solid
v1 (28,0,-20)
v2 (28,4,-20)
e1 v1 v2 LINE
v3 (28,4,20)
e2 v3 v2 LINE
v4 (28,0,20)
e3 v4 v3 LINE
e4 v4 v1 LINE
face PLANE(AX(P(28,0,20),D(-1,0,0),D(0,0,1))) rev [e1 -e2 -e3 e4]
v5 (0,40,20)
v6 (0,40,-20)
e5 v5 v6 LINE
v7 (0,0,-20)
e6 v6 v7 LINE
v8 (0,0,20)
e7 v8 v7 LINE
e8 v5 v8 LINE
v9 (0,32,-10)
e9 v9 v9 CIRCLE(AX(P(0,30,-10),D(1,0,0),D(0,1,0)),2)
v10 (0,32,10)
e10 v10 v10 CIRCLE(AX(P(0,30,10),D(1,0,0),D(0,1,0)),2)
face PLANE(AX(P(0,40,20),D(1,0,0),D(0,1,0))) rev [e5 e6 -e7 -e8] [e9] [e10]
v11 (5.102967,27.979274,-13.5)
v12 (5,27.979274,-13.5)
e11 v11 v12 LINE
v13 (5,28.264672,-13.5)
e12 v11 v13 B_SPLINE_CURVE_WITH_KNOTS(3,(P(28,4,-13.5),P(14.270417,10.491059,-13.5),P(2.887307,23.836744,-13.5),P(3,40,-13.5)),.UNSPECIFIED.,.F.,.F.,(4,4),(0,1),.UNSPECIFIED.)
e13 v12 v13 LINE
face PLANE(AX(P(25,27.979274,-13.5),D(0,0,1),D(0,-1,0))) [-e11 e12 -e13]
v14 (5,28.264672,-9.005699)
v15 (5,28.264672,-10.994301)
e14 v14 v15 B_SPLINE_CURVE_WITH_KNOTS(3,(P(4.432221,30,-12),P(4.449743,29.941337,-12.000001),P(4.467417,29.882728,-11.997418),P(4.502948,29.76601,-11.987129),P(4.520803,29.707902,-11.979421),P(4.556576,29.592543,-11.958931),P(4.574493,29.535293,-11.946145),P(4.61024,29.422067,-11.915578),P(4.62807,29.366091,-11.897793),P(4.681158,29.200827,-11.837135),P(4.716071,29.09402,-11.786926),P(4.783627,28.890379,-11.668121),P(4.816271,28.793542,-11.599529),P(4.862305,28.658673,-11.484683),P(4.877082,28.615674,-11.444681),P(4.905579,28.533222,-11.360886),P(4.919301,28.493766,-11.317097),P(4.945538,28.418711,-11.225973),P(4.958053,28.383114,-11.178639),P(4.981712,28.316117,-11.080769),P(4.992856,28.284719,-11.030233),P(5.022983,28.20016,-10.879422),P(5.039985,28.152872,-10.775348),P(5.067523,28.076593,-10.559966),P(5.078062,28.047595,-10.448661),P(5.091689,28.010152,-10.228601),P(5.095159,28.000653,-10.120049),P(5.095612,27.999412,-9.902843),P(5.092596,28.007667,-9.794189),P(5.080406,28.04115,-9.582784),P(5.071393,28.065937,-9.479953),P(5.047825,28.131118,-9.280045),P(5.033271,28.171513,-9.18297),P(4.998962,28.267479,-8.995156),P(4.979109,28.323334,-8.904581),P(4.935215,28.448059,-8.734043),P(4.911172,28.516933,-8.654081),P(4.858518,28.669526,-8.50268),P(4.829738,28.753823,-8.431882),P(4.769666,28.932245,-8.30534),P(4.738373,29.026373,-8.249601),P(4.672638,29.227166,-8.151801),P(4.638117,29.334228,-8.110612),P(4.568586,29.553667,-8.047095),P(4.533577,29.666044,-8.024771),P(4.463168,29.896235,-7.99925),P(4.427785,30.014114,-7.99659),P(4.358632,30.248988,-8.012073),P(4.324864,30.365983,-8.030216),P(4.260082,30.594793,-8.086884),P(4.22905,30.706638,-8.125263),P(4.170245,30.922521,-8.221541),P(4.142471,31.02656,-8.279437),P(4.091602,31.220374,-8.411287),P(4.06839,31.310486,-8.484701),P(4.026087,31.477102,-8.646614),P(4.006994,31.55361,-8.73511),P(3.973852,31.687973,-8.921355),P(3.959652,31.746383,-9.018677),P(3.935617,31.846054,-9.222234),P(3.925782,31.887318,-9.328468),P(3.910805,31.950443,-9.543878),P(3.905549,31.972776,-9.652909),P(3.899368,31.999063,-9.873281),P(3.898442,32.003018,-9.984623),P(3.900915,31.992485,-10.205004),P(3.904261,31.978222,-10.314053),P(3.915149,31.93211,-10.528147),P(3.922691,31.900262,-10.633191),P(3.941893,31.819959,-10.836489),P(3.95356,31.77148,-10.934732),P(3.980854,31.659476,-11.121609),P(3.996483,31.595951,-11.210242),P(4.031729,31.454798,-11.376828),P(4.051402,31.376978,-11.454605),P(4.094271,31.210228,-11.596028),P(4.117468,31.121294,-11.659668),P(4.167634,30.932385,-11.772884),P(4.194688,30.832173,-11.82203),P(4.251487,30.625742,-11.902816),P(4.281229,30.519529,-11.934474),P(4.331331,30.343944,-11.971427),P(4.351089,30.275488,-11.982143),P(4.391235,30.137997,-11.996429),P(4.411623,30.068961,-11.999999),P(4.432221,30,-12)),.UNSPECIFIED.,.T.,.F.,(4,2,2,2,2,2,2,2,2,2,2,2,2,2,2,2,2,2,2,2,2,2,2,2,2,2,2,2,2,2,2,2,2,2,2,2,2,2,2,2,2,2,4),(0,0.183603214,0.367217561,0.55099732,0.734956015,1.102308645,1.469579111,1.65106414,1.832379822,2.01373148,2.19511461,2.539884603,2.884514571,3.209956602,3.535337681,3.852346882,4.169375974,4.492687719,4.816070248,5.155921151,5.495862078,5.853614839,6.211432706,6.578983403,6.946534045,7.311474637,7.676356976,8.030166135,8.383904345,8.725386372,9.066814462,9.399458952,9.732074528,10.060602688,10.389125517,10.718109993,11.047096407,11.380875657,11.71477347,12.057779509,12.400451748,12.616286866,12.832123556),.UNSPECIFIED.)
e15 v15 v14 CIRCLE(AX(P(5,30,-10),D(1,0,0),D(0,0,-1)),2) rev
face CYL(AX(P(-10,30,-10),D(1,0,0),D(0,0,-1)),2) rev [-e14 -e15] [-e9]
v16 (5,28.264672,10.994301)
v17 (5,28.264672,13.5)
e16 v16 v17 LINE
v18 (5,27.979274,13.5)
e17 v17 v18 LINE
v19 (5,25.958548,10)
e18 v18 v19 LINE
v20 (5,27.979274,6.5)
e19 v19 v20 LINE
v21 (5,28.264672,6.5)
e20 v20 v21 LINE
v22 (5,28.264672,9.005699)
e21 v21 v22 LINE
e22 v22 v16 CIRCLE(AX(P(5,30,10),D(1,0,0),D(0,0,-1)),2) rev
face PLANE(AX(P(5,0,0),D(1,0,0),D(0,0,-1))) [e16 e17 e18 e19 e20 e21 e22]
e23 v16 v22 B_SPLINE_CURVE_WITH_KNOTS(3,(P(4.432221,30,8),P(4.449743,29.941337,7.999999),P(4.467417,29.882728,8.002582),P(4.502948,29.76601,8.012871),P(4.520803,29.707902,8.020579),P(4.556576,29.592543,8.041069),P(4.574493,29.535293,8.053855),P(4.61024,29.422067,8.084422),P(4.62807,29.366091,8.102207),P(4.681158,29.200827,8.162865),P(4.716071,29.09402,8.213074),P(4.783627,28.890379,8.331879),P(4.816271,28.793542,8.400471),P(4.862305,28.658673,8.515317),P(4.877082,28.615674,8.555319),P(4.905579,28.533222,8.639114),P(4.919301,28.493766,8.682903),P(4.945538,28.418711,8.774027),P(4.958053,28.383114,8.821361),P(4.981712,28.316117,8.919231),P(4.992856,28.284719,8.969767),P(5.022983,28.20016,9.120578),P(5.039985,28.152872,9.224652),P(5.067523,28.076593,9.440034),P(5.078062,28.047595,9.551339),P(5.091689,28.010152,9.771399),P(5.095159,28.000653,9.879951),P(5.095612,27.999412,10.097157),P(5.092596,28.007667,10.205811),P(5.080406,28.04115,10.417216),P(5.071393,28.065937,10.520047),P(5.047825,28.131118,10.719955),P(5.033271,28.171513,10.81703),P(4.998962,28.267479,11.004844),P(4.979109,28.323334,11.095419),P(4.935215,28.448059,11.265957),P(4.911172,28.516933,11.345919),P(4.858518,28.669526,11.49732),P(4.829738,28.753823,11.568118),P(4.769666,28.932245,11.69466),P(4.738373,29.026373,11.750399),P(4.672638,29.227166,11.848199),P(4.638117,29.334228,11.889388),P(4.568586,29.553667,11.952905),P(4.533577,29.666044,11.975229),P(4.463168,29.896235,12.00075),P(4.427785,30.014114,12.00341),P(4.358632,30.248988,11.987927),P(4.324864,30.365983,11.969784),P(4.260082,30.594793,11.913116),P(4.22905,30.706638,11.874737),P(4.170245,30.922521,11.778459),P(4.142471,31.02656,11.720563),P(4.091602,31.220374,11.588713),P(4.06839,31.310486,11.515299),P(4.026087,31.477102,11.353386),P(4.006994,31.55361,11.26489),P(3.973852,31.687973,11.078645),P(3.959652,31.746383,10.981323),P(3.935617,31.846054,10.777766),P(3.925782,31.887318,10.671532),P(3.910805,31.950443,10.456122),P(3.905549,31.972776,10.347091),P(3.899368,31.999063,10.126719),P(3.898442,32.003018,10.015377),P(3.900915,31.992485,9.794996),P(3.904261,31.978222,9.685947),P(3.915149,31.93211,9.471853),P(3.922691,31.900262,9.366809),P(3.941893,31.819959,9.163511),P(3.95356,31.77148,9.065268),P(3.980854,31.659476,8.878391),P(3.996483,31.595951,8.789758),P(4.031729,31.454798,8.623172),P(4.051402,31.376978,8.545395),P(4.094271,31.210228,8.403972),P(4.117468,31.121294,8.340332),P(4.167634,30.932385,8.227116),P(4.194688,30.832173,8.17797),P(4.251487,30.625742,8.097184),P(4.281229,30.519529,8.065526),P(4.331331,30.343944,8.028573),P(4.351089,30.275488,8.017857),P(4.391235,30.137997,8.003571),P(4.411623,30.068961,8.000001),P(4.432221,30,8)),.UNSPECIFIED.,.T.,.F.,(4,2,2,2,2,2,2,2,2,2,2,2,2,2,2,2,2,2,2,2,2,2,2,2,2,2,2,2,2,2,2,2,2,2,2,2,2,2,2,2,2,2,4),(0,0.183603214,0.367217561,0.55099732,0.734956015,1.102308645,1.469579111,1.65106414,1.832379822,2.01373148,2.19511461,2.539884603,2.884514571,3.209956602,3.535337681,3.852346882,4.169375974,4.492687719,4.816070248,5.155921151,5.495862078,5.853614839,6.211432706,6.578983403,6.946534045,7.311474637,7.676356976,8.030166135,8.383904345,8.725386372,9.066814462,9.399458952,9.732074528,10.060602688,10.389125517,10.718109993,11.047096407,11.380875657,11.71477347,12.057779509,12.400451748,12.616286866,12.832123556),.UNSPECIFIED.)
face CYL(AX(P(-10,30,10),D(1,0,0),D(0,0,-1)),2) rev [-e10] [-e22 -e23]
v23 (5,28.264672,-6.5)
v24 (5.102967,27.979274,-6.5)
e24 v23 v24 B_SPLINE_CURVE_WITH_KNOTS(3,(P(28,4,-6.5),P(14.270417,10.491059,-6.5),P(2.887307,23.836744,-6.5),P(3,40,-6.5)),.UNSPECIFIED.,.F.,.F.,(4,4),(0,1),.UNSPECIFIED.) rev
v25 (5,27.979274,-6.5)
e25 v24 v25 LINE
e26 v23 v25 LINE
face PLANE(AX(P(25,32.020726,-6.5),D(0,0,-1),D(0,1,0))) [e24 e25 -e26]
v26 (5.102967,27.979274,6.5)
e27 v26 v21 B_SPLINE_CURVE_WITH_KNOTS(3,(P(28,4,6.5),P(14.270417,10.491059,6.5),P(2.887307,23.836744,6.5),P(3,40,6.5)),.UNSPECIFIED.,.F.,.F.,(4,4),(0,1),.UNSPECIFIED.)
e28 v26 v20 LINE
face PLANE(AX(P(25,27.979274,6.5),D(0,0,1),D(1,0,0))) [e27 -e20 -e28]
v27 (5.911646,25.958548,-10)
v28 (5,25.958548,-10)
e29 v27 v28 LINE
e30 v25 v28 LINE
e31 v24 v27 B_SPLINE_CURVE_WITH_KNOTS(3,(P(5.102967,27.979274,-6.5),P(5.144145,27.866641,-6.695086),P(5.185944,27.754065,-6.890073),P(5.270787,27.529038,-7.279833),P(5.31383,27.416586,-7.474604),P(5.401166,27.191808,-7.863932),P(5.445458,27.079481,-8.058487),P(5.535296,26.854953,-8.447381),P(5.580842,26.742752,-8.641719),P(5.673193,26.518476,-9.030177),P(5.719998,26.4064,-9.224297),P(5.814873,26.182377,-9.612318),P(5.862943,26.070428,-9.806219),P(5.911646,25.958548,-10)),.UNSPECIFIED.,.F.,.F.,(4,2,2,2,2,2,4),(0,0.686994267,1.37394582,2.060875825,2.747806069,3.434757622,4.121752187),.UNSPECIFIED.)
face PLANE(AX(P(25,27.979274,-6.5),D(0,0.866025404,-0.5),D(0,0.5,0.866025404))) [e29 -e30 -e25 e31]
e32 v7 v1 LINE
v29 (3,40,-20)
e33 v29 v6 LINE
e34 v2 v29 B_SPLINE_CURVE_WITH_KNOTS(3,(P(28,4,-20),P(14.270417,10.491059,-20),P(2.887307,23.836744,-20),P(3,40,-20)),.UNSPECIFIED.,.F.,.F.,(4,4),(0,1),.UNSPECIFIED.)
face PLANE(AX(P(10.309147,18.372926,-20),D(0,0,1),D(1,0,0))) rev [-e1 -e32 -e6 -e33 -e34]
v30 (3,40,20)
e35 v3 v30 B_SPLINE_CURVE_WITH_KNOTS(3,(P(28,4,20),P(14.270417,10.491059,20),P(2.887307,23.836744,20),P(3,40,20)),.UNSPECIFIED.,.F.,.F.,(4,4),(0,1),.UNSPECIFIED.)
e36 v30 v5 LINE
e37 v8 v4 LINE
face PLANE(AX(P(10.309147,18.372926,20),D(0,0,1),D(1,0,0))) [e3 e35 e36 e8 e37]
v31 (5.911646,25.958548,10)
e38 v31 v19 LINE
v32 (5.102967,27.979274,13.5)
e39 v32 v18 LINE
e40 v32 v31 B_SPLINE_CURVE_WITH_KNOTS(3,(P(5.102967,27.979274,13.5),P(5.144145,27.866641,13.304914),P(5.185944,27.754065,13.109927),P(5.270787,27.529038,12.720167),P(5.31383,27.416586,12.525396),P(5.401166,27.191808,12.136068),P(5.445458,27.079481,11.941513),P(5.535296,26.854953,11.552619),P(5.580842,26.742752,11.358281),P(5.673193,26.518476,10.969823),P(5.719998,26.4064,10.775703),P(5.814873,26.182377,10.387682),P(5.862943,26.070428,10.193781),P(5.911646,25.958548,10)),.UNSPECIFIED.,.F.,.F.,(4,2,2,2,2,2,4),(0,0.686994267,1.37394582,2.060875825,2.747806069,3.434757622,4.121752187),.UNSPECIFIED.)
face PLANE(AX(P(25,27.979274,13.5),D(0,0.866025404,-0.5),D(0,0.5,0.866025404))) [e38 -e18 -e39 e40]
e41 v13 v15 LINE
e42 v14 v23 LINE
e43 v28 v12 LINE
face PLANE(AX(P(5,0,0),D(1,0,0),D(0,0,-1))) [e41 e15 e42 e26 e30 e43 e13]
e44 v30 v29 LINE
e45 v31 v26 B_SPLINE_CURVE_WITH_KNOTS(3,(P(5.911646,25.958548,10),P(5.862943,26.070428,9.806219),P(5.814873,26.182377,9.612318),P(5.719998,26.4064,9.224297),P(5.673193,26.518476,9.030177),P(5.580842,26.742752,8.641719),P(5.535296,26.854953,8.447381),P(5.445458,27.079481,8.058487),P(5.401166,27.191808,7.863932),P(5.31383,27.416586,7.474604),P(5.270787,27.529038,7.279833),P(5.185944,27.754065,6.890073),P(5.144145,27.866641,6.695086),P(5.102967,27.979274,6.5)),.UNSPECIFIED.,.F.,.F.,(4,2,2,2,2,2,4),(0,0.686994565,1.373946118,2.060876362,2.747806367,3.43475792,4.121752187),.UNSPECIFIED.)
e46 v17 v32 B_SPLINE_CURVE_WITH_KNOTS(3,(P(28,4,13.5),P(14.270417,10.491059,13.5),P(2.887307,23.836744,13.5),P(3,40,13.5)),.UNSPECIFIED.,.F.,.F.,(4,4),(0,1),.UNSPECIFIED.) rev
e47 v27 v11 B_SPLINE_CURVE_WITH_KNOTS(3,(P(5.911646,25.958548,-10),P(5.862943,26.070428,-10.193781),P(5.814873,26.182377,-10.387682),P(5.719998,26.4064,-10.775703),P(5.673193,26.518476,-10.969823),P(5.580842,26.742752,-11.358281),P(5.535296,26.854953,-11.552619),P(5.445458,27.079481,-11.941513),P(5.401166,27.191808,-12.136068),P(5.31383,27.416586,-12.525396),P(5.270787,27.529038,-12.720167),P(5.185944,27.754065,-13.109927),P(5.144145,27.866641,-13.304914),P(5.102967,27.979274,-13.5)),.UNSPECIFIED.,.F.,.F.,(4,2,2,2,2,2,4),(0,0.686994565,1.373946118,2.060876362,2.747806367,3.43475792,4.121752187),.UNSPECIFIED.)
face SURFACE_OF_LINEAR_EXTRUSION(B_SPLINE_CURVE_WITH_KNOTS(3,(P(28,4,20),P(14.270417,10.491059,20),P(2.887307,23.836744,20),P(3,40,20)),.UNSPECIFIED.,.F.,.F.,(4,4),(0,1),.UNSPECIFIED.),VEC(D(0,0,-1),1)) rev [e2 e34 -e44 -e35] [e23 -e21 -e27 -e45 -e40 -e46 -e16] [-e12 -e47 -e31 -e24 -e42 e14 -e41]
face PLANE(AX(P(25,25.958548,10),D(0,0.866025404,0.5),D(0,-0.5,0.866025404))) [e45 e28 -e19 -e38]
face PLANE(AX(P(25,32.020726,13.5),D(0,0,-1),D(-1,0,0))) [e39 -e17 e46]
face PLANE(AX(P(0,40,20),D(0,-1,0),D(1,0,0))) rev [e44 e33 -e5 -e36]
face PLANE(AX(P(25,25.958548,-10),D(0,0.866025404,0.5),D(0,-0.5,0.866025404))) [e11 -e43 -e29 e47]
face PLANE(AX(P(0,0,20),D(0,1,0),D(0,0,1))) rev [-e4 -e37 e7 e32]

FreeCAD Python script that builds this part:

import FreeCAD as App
import Part
import Sketcher
Q = App.Units.Quantity


def add_polygon(sketch, points):
    """Adds a closed chain of lines whose ends are joined by coincident constraints."""
    first, n = sketch.GeometryCount, len(points)
    for a, b in zip(points, points[1:] + points[:1]):
        sketch.addGeometry(Part.LineSegment(App.Vector(*a, 0), App.Vector(*b, 0)), False)
    for i in range(n):
        sketch.addConstraint(Sketcher.Constraint("Coincident", first + i, 2, first + (i + 1) % n, 1))

doc = App.newDocument("Part")
body = doc.addObject("PartDesign::Body", "Body")

sketch1 = body.newObject("Sketcher::SketchObject", "Sketch")
sketch1.AttachmentSupport = (doc.getObject("XY_Plane"), [""])
sketch1.MapMode = "FlatFace"
sketch1.addGeometry(Part.LineSegment(App.Vector(0, 40, 0), App.Vector(0, 0, 0)), False)
sketch1.addGeometry(Part.LineSegment(App.Vector(0, 0, 0), App.Vector(28, 0, 0)), False)
sketch1.addGeometry(Part.LineSegment(App.Vector(28, 0, 0), App.Vector(28, 4, 0)), False)
sketch1.addGeometry(Part.BSplineCurve([App.Vector(28, 4, 0), App.Vector(14.270417, 10.491059, 0), App.Vector(2.887307, 23.836744, 0), App.Vector(3, 40, 0)], [4, 4], [0, 1], False, 3, [1, 1, 1, 1], False), False)
sketch1.addGeometry(Part.LineSegment(App.Vector(3, 40, 0), App.Vector(0, 40, 0)), False)
sketch1.addConstraint(Sketcher.Constraint("Block", 3))
sketch1.addConstraint(Sketcher.Constraint("Coincident", 0, 2, 1, 1))
sketch1.addConstraint(Sketcher.Constraint("Coincident", 1, 2, 2, 1))
sketch1.addConstraint(Sketcher.Constraint("Coincident", 2, 2, 3, 1))
sketch1.addConstraint(Sketcher.Constraint("Coincident", 3, 2, 4, 1))
sketch1.addConstraint(Sketcher.Constraint("Coincident", 4, 2, 0, 1))
sketch1.addConstraint(Sketcher.Constraint("Vertical", 0))
sketch1.addConstraint(Sketcher.Constraint("Horizontal", 1))
sketch1.addConstraint(Sketcher.Constraint("Vertical", 2))
sketch1.addConstraint(Sketcher.Constraint("Horizontal", 4))
sketch1.addConstraint(Sketcher.Constraint("Coincident", 0, 2, -1, 1))
pad1 = body.newObject("PartDesign::Pad", "Pad")
pad1.Profile = sketch1
pad1.Length = 40
pad1.Midplane = True

sketch2 = body.newObject("Sketcher::SketchObject", "Sketch001")
sketch2.AttachmentSupport = (doc.getObject("YZ_Plane"), [""])
sketch2.MapMode = "FlatFace"
sketch2.addGeometry(Part.Circle(App.Vector(30, 10, 0), App.Vector(0, 0, 1), 2), False)
sketch2.addGeometry(Part.Circle(App.Vector(30, -10, 0), App.Vector(0, 0, 1), 2), False)
sketch2.addConstraint(Sketcher.Constraint("Equal", 0, 1))
sketch2.addConstraint(Sketcher.Constraint("Symmetric", 0, 3, 1, 3, -1))
sketch2.addConstraint(Sketcher.Constraint("Diameter", 0, 4.0))
sketch2.addConstraint(Sketcher.Constraint("DistanceX", -1, 1, 0, 3, 30.0))
sketch2.addConstraint(Sketcher.Constraint("DistanceY", -1, 1, 0, 3, 10.0))
pocket1 = body.newObject("PartDesign::Pocket", "Pocket")
pocket1.Profile = sketch2
pocket1.Length = 20
pocket1.Midplane = True

sketch3 = body.newObject("Sketcher::SketchObject", "Sketch002")
sketch3.AttachmentSupport = (doc.getObject("YZ_Plane"), [""])
sketch3.MapMode = "FlatFace"
sketch3.AttachmentOffset = App.Placement(App.Vector(0, 0, 5), App.Rotation())
add_polygon(sketch3, [(34, 10), (32, 13.5), (28, 13.5), (26, 10), (28, 6.5), (32, 6.5)])
add_polygon(sketch3, [(34, -10), (32, -6.5), (28, -6.5), (26, -10), (28, -13.5), (32, -13.5)])
sketch3.addConstraint(Sketcher.Constraint("Horizontal", 1))
sketch3.addConstraint(Sketcher.Constraint("Horizontal", 4))
sketch3.addConstraint(Sketcher.Constraint("Horizontal", 7))
sketch3.addConstraint(Sketcher.Constraint("Horizontal", 10))
sketch3.addConstraint(Sketcher.Constraint("Symmetric", 4, 2, 6, 2, -1))
sketch3.addConstraint(Sketcher.Constraint("Symmetric", 2, 2, 8, 2, -1))
sketch3.addConstraint(Sketcher.Constraint("Symmetric", 1, 2, 9, 2, -1))
sketch3.addConstraint(Sketcher.Constraint("Symmetric", 5, 2, 11, 2, -1))
sketch3.addConstraint(Sketcher.Constraint("Parallel", 0, 3))
sketch3.addConstraint(Sketcher.Constraint("Parallel", 2, 5))
sketch3.addConstraint(Sketcher.Constraint("Parallel", 3, 6))
sketch3.addConstraint(Sketcher.Constraint("Parallel", 5, 8))
sketch3.addConstraint(Sketcher.Constraint("Parallel", 8, 11))
sketch3.addConstraint(Sketcher.Constraint("Horizontal", 2, 2, 5, 2))
sketch3.addConstraint(Sketcher.Constraint("Vertical", 1, 2, 3, 2))
sketch3.addConstraint(Sketcher.Constraint("Angle", 0, Q("120 deg")))
sketch3.addConstraint(Sketcher.Constraint("DistanceY", -1, 1, 2, 2, 10.0))
sketch3.addConstraint(Sketcher.Constraint("DistanceY", 3, 2, 1, 2, 7.0))
sketch3.addConstraint(Sketcher.Constraint("DistanceX", 1, 2, 1, 1, 4.041452))
sketch3.addConstraint(Sketcher.Constraint("DistanceX", -1, 1, 2, 2, 25.958548))
pocket2 = body.newObject("PartDesign::Pocket", "Pocket001")
pocket2.Profile = sketch3
pocket2.Length = 20
pocket2.Reversed = True

doc.recompute()
